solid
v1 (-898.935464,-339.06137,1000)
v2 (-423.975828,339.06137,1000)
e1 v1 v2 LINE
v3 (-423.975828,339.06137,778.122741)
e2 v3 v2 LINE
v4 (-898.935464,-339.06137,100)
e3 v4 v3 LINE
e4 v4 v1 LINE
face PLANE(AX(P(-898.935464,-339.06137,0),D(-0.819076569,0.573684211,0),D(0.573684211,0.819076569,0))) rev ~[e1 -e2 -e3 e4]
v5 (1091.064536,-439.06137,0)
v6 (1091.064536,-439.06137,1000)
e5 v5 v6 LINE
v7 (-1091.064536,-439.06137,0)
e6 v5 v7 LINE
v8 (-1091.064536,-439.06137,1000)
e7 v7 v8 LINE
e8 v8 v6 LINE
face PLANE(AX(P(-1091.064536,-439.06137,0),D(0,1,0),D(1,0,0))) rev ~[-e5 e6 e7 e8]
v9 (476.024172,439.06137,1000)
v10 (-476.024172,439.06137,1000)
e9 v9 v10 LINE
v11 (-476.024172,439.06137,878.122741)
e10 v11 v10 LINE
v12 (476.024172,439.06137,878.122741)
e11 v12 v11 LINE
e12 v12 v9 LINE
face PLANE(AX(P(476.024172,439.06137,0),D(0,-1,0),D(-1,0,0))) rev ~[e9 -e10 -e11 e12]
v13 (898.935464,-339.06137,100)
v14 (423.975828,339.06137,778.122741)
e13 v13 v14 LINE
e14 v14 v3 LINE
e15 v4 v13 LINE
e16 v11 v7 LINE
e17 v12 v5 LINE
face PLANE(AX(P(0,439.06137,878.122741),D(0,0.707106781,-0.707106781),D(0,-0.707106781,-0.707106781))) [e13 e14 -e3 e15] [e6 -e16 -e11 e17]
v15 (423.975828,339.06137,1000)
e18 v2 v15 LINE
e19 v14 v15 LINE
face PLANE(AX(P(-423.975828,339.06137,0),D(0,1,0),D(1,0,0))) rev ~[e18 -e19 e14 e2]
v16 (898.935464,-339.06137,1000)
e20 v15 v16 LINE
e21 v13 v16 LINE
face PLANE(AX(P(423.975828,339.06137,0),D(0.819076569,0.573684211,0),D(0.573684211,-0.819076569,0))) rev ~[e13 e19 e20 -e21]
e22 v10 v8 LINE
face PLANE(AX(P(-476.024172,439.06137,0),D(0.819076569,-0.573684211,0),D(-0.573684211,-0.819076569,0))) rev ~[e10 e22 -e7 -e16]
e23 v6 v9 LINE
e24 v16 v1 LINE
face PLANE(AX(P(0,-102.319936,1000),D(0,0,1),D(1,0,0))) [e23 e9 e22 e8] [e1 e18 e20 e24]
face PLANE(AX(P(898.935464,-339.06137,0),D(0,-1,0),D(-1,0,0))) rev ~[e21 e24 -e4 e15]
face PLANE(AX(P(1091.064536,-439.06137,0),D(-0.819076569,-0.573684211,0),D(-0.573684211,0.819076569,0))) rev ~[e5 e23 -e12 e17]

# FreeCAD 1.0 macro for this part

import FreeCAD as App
import Part
import Sketcher
Q = App.Units.Quantity


def add_polygon(sketch, points):
    """Adds a closed chain of lines whose ends are joined by coincident constraints."""
    first, n = sketch.GeometryCount, len(points)
    for a, b in zip(points, points[1:] + points[:1]):
        sketch.addGeometry(Part.LineSegment(App.Vector(*a, 0), App.Vector(*b, 0)), False)
    for i in range(n):
        sketch.addConstraint(Sketcher.Constraint("Coincident", first + i, 2, first + (i + 1) % n, 1))

doc = App.newDocument("Part")
body = doc.addObject("PartDesign::Body", "Body")

# Sketch on XY plane
sketch1 = body.newObject("Sketcher::SketchObject", "Sketch")
sketch1.AttachmentSupport = (doc.getObject("XY_Plane"), [""])
sketch1.MapMode = "FlatFace"
add_polygon(sketch1, [(476.024172, 439.06137), (-476.024172, 439.06137), (-1091.064536, -439.06137), (1091.064536, -439.06137)])  # lines 0-3
add_polygon(sketch1, [(898.935464, -339.06137), (-898.935464, -339.06137), (-423.975828, 339.06137), (423.975828, 339.06137)])  # lines 4-7
sketch1.addConstraint(Sketcher.Constraint("Horizontal", 0))
sketch1.addConstraint(Sketcher.Constraint("Horizontal", 2))
sketch1.addConstraint(Sketcher.Constraint("Horizontal", 4))
sketch1.addConstraint(Sketcher.Constraint("Horizontal", 6))
sketch1.addConstraint(Sketcher.Constraint("Parallel", 1, 5))
sketch1.addConstraint(Sketcher.Constraint("Parallel", 3, 7))
sketch1.addConstraint(Sketcher.Constraint("Equal", 1, 3))
sketch1.addConstraint(Sketcher.Constraint("DistanceY", 1, 2, 4, 2, Q("100 mm")))
sketch1.addConstraint(Sketcher.Constraint("DistanceX", 4, 2, 2, 2, Q("1990 mm")))
sketch1.addConstraint(Sketcher.Constraint("DistanceY", 5, 2, 0, 2, Q("100 mm")))
sketch1.addConstraint(Sketcher.Constraint("DistanceX", 5, 2, 3, 2, Q("900 mm")))
sketch1.addConstraint(Sketcher.Constraint("DistanceX", 0, 2, 6, 2, Q("900 mm")))
sketch1.addConstraint(Sketcher.Constraint("DistanceX", 2, 1, 2, 2, Q("2182.129072 mm")))
sketch1.addConstraint(Sketcher.Constraint("DistanceX", 0, 2, 0, 1, Q("952.048344 mm")))
sketch1.addConstraint(Sketcher.Constraint("DistanceX", 0, 2, -1, 1, Q("476.024172 mm")))
sketch1.addConstraint(Sketcher.Constraint("DistanceY", -1, 1, 0, 2, Q("439.06137 mm")))
pad1 = body.newObject("PartDesign::Pad", "Pad")
pad1.Profile = sketch1
pad1.Length = 1000

# Sketch on YZ plane
sketch2 = body.newObject("Sketcher::SketchObject", "Sketch001")
sketch2.AttachmentSupport = (doc.getObject("YZ_Plane"), [""])
sketch2.MapMode = "FlatFace"
add_polygon(sketch2, [(-439.06137, 0), (439.06137, 0), (439.06137, 878.122741)])  # lines 0-2
sketch2.addConstraint(Sketcher.Constraint("Horizontal", 0))
sketch2.addConstraint(Sketcher.Constraint("Vertical", 1))
sketch2.addConstraint(Sketcher.Constraint("Symmetric", 0, 2, 2, 2, -1, 1))
sketch2.addConstraint(Sketcher.Constraint("Equal", 0, 1))
sketch2.addConstraint(Sketcher.Constraint("DistanceX", 0, 1, 0, 2, Q("878.122741 mm")))
pocket1 = body.newObject("PartDesign::Pocket", "Pocket")
pocket1.Profile = sketch2
pocket1.Type = "ThroughAll"
pocket1.Midplane = True

doc.recompute()
